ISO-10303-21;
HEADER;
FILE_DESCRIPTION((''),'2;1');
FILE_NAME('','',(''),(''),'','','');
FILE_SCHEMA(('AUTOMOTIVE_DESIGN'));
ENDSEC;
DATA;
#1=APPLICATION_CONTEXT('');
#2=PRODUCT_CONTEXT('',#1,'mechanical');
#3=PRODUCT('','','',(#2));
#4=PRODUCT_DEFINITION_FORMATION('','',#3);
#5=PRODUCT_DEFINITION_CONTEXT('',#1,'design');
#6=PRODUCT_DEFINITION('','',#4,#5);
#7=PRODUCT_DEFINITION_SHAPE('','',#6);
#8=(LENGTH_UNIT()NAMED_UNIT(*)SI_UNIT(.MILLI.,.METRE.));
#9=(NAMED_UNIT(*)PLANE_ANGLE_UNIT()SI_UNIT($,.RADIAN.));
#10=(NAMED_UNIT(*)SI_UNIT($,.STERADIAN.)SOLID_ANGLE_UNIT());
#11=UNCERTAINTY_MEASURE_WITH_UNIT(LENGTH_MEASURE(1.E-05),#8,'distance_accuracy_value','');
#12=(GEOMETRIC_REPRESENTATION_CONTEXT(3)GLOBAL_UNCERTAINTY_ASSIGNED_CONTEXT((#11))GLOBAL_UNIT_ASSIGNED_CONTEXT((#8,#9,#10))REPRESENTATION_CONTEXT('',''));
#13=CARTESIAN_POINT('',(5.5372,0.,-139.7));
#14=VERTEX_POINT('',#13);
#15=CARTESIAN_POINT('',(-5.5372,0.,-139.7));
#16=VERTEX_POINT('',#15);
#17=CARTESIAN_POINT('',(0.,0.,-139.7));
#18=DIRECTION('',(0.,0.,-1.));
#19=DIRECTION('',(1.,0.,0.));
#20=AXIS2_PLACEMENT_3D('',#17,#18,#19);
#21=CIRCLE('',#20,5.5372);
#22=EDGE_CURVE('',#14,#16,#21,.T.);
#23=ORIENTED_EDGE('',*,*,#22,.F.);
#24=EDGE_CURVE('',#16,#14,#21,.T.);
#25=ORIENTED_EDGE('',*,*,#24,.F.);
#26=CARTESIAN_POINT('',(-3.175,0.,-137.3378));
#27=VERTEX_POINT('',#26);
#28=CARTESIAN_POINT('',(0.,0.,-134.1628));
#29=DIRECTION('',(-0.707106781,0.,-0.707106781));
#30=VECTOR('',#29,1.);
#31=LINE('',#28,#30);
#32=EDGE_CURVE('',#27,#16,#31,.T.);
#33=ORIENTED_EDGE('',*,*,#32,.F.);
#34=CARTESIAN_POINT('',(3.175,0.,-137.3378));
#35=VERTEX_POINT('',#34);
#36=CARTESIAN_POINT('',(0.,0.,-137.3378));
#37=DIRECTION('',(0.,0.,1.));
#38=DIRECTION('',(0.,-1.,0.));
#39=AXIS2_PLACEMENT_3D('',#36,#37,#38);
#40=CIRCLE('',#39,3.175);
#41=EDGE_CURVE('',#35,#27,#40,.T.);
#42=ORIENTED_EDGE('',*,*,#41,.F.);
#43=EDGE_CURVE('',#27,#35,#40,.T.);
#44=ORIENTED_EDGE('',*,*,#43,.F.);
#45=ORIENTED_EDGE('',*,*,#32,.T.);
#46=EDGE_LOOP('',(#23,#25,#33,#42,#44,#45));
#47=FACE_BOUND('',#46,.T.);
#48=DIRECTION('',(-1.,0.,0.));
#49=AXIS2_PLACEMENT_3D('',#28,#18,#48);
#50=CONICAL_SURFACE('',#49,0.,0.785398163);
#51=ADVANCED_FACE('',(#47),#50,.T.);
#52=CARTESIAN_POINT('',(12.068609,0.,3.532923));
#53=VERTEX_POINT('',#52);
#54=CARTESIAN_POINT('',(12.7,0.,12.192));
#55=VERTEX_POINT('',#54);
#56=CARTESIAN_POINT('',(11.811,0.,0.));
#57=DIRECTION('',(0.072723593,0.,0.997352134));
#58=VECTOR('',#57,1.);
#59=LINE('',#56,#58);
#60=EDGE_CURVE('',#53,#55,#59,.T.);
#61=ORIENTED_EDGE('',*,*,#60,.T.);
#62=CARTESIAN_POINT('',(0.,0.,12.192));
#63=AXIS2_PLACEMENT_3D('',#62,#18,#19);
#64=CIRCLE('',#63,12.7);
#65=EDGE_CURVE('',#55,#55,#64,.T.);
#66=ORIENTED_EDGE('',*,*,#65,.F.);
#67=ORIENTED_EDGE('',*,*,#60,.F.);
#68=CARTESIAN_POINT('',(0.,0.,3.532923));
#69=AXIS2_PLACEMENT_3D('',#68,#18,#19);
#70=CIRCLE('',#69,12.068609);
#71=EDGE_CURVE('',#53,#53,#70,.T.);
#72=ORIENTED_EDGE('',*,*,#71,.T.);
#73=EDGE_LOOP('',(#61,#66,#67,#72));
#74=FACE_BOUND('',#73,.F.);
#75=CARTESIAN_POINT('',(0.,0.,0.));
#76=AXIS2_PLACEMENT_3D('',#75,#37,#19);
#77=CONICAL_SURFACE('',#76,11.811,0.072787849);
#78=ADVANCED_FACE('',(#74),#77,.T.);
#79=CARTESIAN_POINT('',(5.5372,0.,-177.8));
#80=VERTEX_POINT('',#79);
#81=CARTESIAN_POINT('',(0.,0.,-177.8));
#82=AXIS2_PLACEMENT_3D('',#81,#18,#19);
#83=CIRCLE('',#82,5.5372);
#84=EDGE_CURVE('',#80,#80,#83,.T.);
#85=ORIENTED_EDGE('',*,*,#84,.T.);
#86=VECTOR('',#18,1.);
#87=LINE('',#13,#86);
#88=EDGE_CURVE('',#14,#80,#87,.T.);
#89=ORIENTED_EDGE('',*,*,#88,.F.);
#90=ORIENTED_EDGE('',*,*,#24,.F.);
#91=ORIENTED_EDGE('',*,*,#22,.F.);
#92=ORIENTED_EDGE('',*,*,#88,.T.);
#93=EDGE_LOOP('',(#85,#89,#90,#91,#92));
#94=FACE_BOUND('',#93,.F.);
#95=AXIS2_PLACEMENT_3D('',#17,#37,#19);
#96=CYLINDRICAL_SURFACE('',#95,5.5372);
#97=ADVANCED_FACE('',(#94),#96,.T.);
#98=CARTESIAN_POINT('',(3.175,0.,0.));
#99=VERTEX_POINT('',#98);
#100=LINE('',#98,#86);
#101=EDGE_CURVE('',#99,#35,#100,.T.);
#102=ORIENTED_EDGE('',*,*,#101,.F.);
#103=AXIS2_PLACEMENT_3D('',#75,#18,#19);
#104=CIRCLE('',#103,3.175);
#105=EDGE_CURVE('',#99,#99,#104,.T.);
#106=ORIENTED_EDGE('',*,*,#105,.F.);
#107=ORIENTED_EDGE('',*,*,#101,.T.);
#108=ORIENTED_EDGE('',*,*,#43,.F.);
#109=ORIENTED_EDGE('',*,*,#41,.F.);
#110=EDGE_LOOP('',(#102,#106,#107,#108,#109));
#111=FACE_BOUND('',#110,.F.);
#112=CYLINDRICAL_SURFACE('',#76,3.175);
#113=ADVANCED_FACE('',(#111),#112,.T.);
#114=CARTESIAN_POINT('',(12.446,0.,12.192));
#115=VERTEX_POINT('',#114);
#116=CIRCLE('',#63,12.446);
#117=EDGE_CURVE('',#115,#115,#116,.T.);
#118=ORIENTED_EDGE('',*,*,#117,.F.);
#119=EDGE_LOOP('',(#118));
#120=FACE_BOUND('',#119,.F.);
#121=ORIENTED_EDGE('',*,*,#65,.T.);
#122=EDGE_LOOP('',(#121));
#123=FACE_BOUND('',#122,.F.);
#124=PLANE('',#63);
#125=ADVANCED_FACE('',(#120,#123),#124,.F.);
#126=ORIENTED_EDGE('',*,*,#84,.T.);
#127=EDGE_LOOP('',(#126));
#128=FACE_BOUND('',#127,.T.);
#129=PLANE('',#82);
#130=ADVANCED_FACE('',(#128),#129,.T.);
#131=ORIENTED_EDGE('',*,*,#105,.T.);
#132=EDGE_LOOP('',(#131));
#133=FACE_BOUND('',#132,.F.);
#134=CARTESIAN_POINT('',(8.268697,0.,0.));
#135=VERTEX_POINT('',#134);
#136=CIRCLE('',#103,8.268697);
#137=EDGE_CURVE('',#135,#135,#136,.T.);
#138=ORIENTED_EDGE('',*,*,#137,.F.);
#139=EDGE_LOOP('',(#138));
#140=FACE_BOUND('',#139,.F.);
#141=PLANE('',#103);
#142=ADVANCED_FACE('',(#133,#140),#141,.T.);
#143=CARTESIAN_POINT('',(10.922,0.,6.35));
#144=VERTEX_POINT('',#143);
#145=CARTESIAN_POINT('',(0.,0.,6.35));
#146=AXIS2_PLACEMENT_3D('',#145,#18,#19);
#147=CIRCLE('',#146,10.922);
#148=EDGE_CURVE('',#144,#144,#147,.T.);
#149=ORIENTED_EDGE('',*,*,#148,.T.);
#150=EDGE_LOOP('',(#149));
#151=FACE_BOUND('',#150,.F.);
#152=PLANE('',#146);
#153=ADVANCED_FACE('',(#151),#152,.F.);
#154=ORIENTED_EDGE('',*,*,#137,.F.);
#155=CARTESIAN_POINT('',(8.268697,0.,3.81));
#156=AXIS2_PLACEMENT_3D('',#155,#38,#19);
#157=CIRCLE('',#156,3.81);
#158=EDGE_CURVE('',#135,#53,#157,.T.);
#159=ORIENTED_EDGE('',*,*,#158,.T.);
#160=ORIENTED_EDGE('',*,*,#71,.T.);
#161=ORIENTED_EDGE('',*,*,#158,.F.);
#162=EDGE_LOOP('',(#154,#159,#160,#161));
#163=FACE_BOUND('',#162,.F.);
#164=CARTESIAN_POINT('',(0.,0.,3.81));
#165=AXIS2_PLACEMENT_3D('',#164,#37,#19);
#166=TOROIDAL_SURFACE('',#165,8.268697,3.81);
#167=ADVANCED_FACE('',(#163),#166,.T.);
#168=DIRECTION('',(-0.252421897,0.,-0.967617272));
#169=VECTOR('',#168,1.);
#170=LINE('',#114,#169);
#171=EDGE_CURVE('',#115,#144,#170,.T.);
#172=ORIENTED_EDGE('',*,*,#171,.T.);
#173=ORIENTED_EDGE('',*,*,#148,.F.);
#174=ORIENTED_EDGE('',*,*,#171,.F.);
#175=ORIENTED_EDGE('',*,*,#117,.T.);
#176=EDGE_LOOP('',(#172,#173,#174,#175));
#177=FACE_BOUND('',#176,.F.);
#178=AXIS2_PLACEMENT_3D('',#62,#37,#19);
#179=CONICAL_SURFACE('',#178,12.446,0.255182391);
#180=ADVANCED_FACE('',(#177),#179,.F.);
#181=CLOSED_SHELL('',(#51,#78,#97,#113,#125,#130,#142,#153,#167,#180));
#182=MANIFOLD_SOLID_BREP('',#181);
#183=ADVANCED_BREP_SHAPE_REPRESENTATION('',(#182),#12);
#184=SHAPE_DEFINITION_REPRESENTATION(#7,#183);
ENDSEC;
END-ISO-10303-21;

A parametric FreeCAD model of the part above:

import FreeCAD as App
import Part
import Sketcher
Q = App.Units.Quantity


def edges_at(feature, points):
    """Names of the edges that pass closest to the given points."""
    edges = feature.Shape.Edges
    near = lambda p: min(range(len(edges)), key=lambda i: edges[i].distToShape(Part.Vertex(*p))[0])
    return sorted({f"Edge{near(p) + 1}" for p in points})

doc = App.newDocument("Part")
body = doc.addObject("PartDesign::Body", "Body")

# Sketch on XZ plane
sketch1 = doc.addObject("Sketcher::SketchObject", "Sketch")
body.addObject(sketch1)
sketch1.AttachmentSupport = (doc.XZ_Plane, [""])
sketch1.MapMode = "FlatFace"
sketch1.addGeometry([
    Part.LineSegment(App.Vector(0, 6.35, 0), App.Vector(0, 0, 0)),  # 0
    Part.LineSegment(App.Vector(0, 0, 0), App.Vector(11.811, 0, 0)),  # 1
    Part.LineSegment(App.Vector(11.811, 0, 0), App.Vector(12.7, 12.192, 0)),  # 2
    Part.LineSegment(App.Vector(12.7, 12.192, 0), App.Vector(12.446, 12.192, 0)),  # 3
    Part.LineSegment(App.Vector(12.446, 12.192, 0), App.Vector(10.922, 6.35, 0)),  # 4
    Part.LineSegment(App.Vector(10.922, 6.35, 0), App.Vector(0, 6.35, 0)),  # 5
], False)
sketch1.addConstraint([
    Sketcher.Constraint("Coincident", 0, 2, 1, 1),
    Sketcher.Constraint("Coincident", 1, 2, 2, 1),
    Sketcher.Constraint("Coincident", 2, 2, 3, 1),
    Sketcher.Constraint("Coincident", 3, 2, 4, 1),
    Sketcher.Constraint("Coincident", 4, 2, 5, 1),
    Sketcher.Constraint("Coincident", 5, 2, 0, 1),
    Sketcher.Constraint("Vertical", 0),
    Sketcher.Constraint("Horizontal", 1),
    Sketcher.Constraint("Horizontal", 3),
    Sketcher.Constraint("Horizontal", 5),
    Sketcher.Constraint("Coincident", 0, 2, -1, 1),
    Sketcher.Constraint("DistanceX", 3, 2, 3, 1, Q("0.01 in")),
    Sketcher.Constraint("DistanceX", 5, 2, 5, 1, Q("0.43 in")),
    Sketcher.Constraint("DistanceY", 0, 2, 0, 1, Q("0.25 in")),
    Sketcher.Constraint("DistanceX", -1, 1, 2, 2, Q("0.5 in")),
    Sketcher.Constraint("DistanceX", 1, 1, 1, 2, Q("0.465 in")),
    Sketcher.Constraint("DistanceY", -1, 1, 2, 2, Q("0.48 in")),
])
revolution = doc.addObject("PartDesign::Revolution", "Revolution")
body.addObject(revolution)
revolution.Profile = sketch1
revolution.ReferenceAxis = (sketch1, ["V_Axis"])
revolution.Angle = 360
doc.recompute()

fillet = doc.addObject("PartDesign::Fillet", "Fillet")
body.addObject(fillet)
fillet.Base = (revolution, edges_at(revolution, [(-11.811, 0, 0)]))
fillet.Radius = Q("0.15 in")

# Sketch on XY plane
sketch2 = doc.addObject("Sketcher::SketchObject", "Sketch001")
body.addObject(sketch2)
sketch2.AttachmentSupport = (doc.XY_Plane, [""])
sketch2.MapMode = "FlatFace"
sketch2.addGeometry(Part.Circle(App.Vector(0, 0, 0), App.Vector(0, 0, 1), 3.175), False)
sketch2.addConstraint([
    Sketcher.Constraint("Coincident", 0, 3, -1, 1),
    Sketcher.Constraint("Diameter", 0, Q("0.25 in")),
])
pad1 = doc.addObject("PartDesign::Pad", "Pad")
body.addObject(pad1)
pad1.Profile = sketch2
pad1.Length = Q("5.5 in")
pad1.Reversed = True

# Sketch on XY plane
sketch3 = doc.addObject("Sketcher::SketchObject", "Sketch002")
body.addObject(sketch3)
sketch3.AttachmentSupport = (doc.XY_Plane, [""])
sketch3.MapMode = "FlatFace"
sketch3.AttachmentOffset = App.Placement(App.Vector(0, 0, -5.5 * 25.4), App.Rotation())
sketch3.addGeometry(Part.Circle(App.Vector(0, 0, 0), App.Vector(0, 0, 1), 5.5372), False)
sketch3.addConstraint([
    Sketcher.Constraint("Coincident", 0, 3, -1, 1),
    Sketcher.Constraint("Diameter", 0, Q("0.436 in")),
])
pad2 = doc.addObject("PartDesign::Pad", "Pad001")
body.addObject(pad2)
pad2.Profile = sketch3
pad2.Length = Q("1.5 in")
pad2.Reversed = True

# Sketch on XZ plane
sketch4 = doc.addObject("Sketcher::SketchObject", "Sketch003")
body.addObject(sketch4)
sketch4.AttachmentSupport = (doc.XZ_Plane, [""])
sketch4.MapMode = "FlatFace"
sketch4.addGeometry([
    Part.LineSegment(App.Vector(-5.5372, -139.7, 0), App.Vector(0, -139.7, 0)),
    Part.LineSegment(App.Vector(0, -139.7, 0), App.Vector(0, -134.1628, 0)),
    Part.LineSegment(App.Vector(0, -134.1628, 0), App.Vector(-5.5372, -139.7, 0)),
], False)
sketch4.addConstraint([
    Sketcher.Constraint("Coincident", 0, 2, 1, 1),
    Sketcher.Constraint("Coincident", 1, 2, 2, 1),
    Sketcher.Constraint("Coincident", 2, 2, 0, 1),
    Sketcher.Constraint("Horizontal", 0),
    Sketcher.Constraint("Vertical", 1),
    Sketcher.Constraint("PointOnObject", 0, 2, -2),
    Sketcher.Constraint("Equal", 0, 1),
    Sketcher.Constraint("DistanceY", 0, 2, -1, 1, Q("5.5 in")),
    Sketcher.Constraint("DistanceX", 0, 1, 0, 2, Q("0.218 in")),
])
revolution2 = doc.addObject("PartDesign::Revolution", "Revolution001")
body.addObject(revolution2)
revolution2.Profile = sketch4
revolution2.ReferenceAxis = (sketch4, ["V_Axis"])
revolution2.Angle = 360

doc.recompute()
